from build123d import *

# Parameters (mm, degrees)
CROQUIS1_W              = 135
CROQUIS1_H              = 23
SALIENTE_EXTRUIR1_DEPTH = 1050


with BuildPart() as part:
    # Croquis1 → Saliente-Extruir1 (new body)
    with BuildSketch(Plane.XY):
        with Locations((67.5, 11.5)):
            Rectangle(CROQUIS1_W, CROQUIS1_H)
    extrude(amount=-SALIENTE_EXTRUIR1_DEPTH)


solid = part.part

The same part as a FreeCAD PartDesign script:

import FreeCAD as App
import Part
import Sketcher
from FreeCAD import Vector
Q = App.Units.Quantity


def add_polygon(sketch, points):
    """Adds a closed chain of lines whose ends are joined by coincident constraints."""
    first, n = sketch.GeometryCount, len(points)
    for a, b in zip(points, points[1:] + points[:1]):
        sketch.addGeometry(Part.LineSegment(App.Vector(*a, 0), App.Vector(*b, 0)), False)
    for i in range(n):
        sketch.addConstraint(Sketcher.Constraint("Coincident", first + i, 2, first + (i + 1) % n, 1))

doc = App.newDocument("Part")
params = doc.addObject("Spreadsheet::Sheet", "Params")
for row, (alias, value) in enumerate([
    ("sketch1_width", "135 mm"),
    ("sketch1_height", "23 mm"),
    ("pad1_length", "1050 mm"),
], start=1):
    params.set(f"A{row}", alias)
    params.set(f"B{row}", "=" + value)
    params.setAlias(f"B{row}", alias)

body = doc.addObject("PartDesign::Body", "Body")

# Sketch on XY plane
sketch1 = body.newObject("Sketcher::SketchObject", "Sketch")
sketch1.AttachmentSupport = (doc.getObject("XY_Plane"), [""])
sketch1.MapMode = "FlatFace"
add_polygon(sketch1, [(0, 23), (0, 0), (135, 0), (135, 23)])  # lines 0-3
sketch1.addConstraint([
    Sketcher.Constraint("Vertical", 0),
    Sketcher.Constraint("Horizontal", 1),
    Sketcher.Constraint("Vertical", 2),
    Sketcher.Constraint("Horizontal", 3),
    Sketcher.Constraint("Coincident", 0, 2, -1, 1),
    Sketcher.Constraint("DistanceX", 1, 1, 1, 2, Q("135 mm")),
    Sketcher.Constraint("DistanceY", 0, 2, 0, 1, Q("23 mm")),
])
sketch1.setExpression("Constraints[9]", "Params.sketch1_width")
sketch1.setExpression("Constraints[10]", "Params.sketch1_height")
pad1 = body.newObject("PartDesign::Pad", "Pad")
pad1.Profile = sketch1
pad1.setExpression("Length", "Params.pad1_length")
pad1.Reversed = True

doc.recompute()
